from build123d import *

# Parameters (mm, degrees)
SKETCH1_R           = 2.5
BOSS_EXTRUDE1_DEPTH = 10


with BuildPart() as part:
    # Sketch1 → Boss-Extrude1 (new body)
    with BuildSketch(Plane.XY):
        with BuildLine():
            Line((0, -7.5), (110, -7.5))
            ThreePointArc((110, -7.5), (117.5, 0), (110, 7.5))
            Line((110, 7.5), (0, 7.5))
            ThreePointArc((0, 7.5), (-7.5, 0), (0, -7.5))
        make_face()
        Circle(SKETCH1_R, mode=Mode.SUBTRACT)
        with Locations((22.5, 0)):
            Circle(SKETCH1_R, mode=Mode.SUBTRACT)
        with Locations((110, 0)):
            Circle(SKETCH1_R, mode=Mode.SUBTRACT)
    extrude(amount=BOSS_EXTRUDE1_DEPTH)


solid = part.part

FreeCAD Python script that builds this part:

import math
import FreeCAD as App
import Part
import Sketcher
Q = App.Units.Quantity

doc = App.newDocument("Part")
params = doc.addObject("Spreadsheet::Sheet", "Params")
for row, (alias, value) in enumerate([
    ("sketch1_diameter", "5 mm"),
    ("sketch1_radius", "7.5 mm"),
    ("sketch1_width", "110 mm"),
    ("pad1_length", "10 mm"),
], start=1):
    params.set(f"A{row}", alias)
    params.set(f"B{row}", "=" + value)
    params.setAlias(f"B{row}", alias)

body = doc.addObject("PartDesign::Body", "Body")

sketch1 = body.newObject("Sketcher::SketchObject", "Sketch")
sketch1.AttachmentSupport = (doc.getObject("XY_Plane"), [""])
sketch1.MapMode = "FlatFace"
sketch1.addGeometry([
    Part.LineSegment(App.Vector(0, -7.5, 0), App.Vector(110, -7.5, 0)),
    Part.ArcOfCircle(Part.Circle(App.Vector(110, 0, 0), App.Vector(0, 0, 1), 7.5), math.radians(-90), math.radians(90)),
    Part.LineSegment(App.Vector(110, 7.5, 0), App.Vector(0, 7.5, 0)),
    Part.ArcOfCircle(Part.Circle(App.Vector(0, 0, 0), App.Vector(0, 0, 1), 7.5), math.radians(90), math.radians(270)),
    Part.Circle(App.Vector(0, 0, 0), App.Vector(0, 0, 1), 2.5),
    Part.Circle(App.Vector(22.5, 0, 0), App.Vector(0, 0, 1), 2.5),
    Part.Circle(App.Vector(110, 0, 0), App.Vector(0, 0, 1), 2.5),
], False)
sketch1.addConstraint([
    Sketcher.Constraint("Tangent", 0, 2, 1, 1),
    Sketcher.Constraint("Tangent", 1, 2, 2, 1),
    Sketcher.Constraint("Tangent", 2, 2, 3, 1),
    Sketcher.Constraint("Tangent", 3, 2, 0, 1),
    Sketcher.Constraint("Horizontal", 0),
    Sketcher.Constraint("Horizontal", 2),
    Sketcher.Constraint("Coincident", 3, 3, -1, 1),
    Sketcher.Constraint("Coincident", 4, 3, -1, 1),
    Sketcher.Constraint("Coincident", 6, 3, 1, 3),
    Sketcher.Constraint("Equal", 4, 5),
    Sketcher.Constraint("Equal", 5, 6),
    Sketcher.Constraint("PointOnObject", 5, 3, -1),
    Sketcher.Constraint("Diameter", 4, Q("5 mm")),
    Sketcher.Constraint("Radius", 1, Q("7.5 mm")),
    Sketcher.Constraint("DistanceX", 0, 1, 0, 2, Q("110 mm")),
    Sketcher.Constraint("DistanceX", -1, 1, 5, 3, Q("22.5 mm")),
])
sketch1.setExpression("Constraints[12]", "Params.sketch1_diameter")
sketch1.setExpression("Constraints[13]", "Params.sketch1_radius")
sketch1.setExpression("Constraints[14]", "Params.sketch1_width")
pad1 = body.newObject("PartDesign::Pad", "Pad")
pad1.Profile = sketch1
pad1.setExpression("Length", "Params.pad1_length")

doc.recompute()
